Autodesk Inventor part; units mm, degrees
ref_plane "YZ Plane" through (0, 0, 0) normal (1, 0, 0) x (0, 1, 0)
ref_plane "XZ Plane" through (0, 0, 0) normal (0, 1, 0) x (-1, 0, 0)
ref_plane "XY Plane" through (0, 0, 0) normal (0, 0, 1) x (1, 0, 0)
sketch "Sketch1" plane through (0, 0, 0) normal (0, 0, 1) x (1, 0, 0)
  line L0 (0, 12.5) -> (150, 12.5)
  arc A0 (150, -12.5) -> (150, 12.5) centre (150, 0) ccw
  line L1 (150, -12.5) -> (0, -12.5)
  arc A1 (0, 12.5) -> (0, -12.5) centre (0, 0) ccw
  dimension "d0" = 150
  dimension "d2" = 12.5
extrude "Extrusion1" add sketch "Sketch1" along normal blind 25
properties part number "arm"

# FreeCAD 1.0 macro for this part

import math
import FreeCAD as App
import Part
import Sketcher

V = App.Vector

doc = App.newDocument("Part")
body = doc.addObject("PartDesign::Body", "Body")

# Sketch on XY plane
sketch1 = body.newObject("Sketcher::SketchObject", "Sketch")
sketch1.AttachmentSupport = (doc.getObject("XY_Plane"), [""])
sketch1.MapMode = "FlatFace"
sketch1.addGeometry(Part.LineSegment(V(150, 12, 0), V(0, 12, 0)), False)
sketch1.addGeometry(Part.ArcOfCircle(Part.Circle(V(0, 0, 0), V(0, 0, 1), 12), math.radians(90), math.radians(270)), False)
sketch1.addGeometry(Part.LineSegment(V(0, -12, 0), V(150, -12, 0)), False)
sketch1.addGeometry(Part.ArcOfCircle(Part.Circle(V(150, 0, 0), V(0, 0, 1), 12), math.radians(-90), math.radians(90)), False)
sketch1.addConstraint(Sketcher.Constraint("Tangent", 0, 2, 1, 1))
sketch1.addConstraint(Sketcher.Constraint("Tangent", 1, 2, 2, 1))
sketch1.addConstraint(Sketcher.Constraint("Tangent", 2, 2, 3, 1))
sketch1.addConstraint(Sketcher.Constraint("Tangent", 3, 2, 0, 1))
sketch1.addConstraint(Sketcher.Constraint("Horizontal", 0))
sketch1.addConstraint(Sketcher.Constraint("Horizontal", 2))
sketch1.addConstraint(Sketcher.Constraint("Coincident", 1, 3, -1, 1))
sketch1.addConstraint(Sketcher.Constraint("Radius", 1, 12.5))
sketch1.addConstraint(Sketcher.Constraint("DistanceX", 0, 2, 0, 1, 150.0))
pad1 = body.newObject("PartDesign::Pad", "Pad")
pad1.Profile = sketch1
pad1.Length = 25

doc.recompute()
